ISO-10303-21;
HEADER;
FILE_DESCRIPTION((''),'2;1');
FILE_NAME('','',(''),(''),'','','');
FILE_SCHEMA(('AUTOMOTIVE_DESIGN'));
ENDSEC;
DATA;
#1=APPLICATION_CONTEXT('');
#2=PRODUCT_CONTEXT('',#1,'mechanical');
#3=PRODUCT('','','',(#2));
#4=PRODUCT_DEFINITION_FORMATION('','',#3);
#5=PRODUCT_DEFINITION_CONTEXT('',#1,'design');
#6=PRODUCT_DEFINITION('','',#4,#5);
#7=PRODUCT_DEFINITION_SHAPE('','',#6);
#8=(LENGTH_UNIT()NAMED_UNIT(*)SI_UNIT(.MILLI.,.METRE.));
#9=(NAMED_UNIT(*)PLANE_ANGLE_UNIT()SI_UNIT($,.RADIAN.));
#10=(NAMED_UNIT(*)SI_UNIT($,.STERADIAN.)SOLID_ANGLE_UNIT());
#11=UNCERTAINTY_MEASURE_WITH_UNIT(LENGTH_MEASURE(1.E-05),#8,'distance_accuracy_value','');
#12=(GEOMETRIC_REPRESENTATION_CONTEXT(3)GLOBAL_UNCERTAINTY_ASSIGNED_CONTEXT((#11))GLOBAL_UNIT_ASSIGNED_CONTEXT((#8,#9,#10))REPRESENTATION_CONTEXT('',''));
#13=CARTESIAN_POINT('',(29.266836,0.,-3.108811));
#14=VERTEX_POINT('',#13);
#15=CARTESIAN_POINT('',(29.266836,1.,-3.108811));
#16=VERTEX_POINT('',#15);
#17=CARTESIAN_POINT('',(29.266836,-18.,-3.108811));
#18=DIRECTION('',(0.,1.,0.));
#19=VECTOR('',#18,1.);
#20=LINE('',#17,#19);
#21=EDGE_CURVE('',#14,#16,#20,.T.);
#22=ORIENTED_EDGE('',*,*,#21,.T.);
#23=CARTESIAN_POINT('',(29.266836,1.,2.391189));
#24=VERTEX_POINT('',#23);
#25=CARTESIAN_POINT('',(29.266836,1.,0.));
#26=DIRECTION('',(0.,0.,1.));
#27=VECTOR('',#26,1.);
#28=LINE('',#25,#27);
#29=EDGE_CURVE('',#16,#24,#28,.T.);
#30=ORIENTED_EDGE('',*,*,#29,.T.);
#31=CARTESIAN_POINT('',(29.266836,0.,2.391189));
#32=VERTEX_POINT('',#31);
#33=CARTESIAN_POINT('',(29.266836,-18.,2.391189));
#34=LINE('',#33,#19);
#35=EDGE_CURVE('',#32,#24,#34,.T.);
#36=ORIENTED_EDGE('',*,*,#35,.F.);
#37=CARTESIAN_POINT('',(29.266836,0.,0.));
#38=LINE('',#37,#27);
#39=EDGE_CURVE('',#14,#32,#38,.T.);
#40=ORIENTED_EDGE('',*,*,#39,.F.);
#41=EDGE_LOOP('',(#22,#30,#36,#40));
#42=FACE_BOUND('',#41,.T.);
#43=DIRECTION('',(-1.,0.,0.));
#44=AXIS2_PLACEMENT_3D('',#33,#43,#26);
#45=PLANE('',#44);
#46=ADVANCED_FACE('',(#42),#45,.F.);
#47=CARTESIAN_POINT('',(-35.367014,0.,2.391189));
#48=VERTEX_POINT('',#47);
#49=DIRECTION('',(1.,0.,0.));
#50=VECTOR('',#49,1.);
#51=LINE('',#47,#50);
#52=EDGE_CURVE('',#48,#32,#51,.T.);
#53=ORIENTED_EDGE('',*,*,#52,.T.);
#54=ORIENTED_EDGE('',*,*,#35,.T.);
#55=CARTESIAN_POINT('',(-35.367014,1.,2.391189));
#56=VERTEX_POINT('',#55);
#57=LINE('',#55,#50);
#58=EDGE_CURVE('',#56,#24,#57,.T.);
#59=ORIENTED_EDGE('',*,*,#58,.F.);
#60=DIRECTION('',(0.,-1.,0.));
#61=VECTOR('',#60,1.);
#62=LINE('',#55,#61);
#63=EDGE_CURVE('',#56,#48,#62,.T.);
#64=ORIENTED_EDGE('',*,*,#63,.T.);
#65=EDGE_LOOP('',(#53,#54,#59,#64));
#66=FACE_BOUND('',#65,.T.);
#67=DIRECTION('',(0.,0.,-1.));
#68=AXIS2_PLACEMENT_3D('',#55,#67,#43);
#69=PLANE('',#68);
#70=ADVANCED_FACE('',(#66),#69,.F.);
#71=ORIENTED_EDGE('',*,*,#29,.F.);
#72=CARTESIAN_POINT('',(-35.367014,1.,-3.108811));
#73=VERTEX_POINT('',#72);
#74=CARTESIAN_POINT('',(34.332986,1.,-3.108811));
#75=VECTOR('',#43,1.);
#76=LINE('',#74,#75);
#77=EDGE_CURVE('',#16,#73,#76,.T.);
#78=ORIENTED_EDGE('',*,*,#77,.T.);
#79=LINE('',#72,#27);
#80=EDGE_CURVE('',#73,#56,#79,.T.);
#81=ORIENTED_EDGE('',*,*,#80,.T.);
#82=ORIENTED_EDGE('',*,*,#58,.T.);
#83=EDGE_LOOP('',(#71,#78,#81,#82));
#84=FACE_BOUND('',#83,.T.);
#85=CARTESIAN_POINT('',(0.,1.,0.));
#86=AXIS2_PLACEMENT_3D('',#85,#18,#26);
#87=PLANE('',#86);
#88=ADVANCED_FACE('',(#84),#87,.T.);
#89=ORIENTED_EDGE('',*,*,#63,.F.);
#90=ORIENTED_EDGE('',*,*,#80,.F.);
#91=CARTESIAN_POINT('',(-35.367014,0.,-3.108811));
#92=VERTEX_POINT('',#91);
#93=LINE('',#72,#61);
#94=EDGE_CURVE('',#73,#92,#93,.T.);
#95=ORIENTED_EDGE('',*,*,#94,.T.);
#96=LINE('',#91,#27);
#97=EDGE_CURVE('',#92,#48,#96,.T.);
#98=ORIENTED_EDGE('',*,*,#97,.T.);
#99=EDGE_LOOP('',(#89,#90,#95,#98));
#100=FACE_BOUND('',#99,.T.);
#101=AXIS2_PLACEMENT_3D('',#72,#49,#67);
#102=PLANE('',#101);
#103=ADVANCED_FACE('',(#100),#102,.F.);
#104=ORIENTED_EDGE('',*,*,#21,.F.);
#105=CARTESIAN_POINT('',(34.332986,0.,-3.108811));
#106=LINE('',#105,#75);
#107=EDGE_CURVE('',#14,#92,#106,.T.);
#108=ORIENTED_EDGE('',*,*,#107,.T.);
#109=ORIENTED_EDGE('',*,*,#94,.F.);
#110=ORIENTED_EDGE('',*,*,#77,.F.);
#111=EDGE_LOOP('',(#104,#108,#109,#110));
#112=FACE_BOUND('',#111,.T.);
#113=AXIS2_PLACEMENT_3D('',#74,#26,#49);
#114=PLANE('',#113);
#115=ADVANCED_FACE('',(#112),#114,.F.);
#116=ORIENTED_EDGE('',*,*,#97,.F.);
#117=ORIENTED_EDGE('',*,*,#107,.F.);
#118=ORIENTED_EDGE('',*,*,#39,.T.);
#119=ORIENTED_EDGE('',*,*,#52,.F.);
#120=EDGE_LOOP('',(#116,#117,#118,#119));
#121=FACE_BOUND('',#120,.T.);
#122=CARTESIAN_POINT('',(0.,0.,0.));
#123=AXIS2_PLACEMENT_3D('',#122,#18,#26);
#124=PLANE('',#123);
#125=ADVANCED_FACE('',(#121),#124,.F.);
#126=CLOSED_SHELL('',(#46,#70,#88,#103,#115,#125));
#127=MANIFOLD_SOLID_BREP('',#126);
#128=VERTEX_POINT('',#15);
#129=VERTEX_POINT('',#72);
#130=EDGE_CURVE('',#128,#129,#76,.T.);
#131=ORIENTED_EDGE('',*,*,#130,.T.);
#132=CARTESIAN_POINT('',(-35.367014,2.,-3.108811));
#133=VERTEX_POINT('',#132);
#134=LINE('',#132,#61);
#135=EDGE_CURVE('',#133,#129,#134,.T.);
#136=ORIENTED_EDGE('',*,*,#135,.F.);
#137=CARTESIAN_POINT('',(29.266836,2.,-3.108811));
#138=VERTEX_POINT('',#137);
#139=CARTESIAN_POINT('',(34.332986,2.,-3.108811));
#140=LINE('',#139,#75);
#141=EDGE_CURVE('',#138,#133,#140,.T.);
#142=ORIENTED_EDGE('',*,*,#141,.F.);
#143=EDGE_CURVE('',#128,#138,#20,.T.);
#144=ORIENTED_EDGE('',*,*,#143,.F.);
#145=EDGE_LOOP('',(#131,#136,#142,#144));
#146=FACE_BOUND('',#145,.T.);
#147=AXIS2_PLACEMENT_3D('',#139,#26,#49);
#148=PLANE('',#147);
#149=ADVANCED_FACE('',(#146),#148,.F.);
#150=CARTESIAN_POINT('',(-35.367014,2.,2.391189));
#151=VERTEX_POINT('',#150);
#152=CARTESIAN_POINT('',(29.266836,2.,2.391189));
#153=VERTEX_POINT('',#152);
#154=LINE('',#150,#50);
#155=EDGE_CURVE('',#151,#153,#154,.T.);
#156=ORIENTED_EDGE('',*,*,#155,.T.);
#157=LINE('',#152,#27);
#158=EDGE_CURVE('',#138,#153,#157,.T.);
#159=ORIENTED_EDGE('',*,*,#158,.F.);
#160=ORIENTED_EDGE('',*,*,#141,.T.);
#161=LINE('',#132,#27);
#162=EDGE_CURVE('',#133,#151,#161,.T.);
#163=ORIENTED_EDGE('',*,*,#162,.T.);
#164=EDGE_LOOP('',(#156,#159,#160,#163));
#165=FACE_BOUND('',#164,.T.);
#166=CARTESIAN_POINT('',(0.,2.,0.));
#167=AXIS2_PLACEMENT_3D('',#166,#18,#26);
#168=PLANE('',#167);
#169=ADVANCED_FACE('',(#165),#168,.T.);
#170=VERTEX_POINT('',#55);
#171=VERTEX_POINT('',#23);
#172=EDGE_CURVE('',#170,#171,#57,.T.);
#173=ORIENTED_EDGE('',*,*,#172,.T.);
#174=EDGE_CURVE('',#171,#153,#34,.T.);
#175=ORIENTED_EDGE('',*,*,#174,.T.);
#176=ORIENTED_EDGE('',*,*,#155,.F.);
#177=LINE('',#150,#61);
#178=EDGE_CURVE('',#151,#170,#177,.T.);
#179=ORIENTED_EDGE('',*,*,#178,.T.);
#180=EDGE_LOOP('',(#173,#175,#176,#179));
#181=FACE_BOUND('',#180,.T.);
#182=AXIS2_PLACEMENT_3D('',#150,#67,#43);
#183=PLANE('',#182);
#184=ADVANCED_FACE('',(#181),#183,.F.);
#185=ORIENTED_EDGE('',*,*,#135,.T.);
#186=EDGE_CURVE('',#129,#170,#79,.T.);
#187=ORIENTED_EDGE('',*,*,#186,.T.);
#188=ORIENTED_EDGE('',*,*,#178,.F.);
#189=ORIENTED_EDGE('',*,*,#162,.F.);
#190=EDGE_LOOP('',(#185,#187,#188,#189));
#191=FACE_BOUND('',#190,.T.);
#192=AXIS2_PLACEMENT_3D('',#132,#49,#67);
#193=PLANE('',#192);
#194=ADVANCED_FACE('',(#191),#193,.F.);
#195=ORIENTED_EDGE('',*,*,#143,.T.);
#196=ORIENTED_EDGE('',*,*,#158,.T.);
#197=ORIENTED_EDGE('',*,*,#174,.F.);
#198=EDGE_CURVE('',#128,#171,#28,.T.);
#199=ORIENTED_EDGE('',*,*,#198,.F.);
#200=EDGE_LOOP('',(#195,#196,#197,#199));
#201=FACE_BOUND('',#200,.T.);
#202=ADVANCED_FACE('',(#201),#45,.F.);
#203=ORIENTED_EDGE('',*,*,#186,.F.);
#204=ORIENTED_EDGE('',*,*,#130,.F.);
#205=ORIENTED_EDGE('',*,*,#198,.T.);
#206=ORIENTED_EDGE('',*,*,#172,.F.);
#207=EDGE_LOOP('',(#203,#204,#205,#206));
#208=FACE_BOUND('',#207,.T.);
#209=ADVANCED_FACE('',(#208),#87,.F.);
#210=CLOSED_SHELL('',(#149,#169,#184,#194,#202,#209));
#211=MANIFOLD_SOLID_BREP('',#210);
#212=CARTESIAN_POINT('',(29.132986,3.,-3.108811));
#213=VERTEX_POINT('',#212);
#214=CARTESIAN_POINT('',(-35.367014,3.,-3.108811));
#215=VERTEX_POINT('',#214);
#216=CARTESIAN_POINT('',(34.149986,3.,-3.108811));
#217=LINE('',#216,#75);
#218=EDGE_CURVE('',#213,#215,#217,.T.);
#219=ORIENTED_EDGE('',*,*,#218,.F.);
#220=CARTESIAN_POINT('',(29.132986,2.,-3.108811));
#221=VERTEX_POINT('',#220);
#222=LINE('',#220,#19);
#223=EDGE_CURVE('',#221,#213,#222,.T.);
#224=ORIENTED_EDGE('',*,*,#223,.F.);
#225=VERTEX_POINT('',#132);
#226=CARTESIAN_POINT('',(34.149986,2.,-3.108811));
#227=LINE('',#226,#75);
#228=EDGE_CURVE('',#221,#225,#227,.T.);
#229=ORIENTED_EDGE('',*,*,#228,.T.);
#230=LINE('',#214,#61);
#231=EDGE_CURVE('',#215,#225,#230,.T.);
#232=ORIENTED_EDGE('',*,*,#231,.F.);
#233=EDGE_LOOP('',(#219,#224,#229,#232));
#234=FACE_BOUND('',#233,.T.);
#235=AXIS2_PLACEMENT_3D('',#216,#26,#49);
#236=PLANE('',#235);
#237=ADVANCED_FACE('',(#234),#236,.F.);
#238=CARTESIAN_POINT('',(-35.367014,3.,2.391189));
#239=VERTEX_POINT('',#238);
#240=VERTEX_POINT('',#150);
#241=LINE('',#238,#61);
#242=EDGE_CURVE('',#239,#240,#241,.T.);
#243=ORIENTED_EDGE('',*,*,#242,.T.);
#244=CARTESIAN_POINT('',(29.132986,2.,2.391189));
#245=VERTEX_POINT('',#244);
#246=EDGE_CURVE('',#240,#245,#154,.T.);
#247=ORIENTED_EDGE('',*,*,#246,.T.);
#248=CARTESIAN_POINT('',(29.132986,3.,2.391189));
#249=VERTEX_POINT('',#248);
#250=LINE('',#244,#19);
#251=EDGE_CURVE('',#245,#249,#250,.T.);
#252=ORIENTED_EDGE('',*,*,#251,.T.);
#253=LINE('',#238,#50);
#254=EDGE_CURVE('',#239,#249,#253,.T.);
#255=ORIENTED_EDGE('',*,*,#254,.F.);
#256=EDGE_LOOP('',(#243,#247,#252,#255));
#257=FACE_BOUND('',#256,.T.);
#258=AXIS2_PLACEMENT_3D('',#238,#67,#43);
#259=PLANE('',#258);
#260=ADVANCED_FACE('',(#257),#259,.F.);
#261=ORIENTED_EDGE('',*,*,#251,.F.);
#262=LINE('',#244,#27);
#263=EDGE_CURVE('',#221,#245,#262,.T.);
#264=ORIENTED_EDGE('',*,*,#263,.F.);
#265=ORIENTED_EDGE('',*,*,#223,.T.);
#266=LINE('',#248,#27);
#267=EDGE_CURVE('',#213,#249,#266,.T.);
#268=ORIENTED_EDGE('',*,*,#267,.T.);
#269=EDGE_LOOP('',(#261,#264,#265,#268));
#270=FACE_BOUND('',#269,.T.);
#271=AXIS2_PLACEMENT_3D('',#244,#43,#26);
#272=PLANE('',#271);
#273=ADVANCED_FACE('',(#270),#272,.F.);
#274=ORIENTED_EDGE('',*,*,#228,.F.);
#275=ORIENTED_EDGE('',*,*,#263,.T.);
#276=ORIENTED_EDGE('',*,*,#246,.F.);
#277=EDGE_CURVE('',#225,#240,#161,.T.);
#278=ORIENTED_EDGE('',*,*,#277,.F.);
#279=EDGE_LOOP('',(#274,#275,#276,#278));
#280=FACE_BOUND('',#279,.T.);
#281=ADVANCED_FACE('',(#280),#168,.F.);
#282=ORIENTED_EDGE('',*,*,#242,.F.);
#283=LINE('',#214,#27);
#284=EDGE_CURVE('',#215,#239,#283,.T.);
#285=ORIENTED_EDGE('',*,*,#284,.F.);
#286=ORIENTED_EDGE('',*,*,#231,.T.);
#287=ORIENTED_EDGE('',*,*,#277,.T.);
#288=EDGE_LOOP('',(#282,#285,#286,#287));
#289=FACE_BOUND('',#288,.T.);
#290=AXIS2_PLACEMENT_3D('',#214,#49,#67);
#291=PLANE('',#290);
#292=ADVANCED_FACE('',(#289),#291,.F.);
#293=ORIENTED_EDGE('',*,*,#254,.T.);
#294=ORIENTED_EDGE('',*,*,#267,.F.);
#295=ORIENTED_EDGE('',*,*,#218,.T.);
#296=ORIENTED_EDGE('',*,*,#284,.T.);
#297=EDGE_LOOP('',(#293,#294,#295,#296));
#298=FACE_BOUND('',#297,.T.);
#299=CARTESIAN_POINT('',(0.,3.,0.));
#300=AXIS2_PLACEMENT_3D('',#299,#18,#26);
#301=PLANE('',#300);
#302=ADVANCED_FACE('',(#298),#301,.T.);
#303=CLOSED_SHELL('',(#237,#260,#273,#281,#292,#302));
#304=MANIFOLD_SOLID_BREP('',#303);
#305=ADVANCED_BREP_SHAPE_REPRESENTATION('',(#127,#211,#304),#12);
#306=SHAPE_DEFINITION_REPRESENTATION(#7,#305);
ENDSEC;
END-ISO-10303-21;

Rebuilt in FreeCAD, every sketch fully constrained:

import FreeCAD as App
import Part
import Sketcher


def add_polygon(sketch, points):
    """Adds a closed chain of lines whose ends are joined by coincident constraints."""
    first, n = sketch.GeometryCount, len(points)
    for a, b in zip(points, points[1:] + points[:1]):
        sketch.addGeometry(Part.LineSegment(App.Vector(*a, 0), App.Vector(*b, 0)), False)
    for i in range(n):
        sketch.addConstraint(Sketcher.Constraint("Coincident", first + i, 2, first + (i + 1) % n, 1))

doc = App.newDocument("Part")
body = doc.addObject("PartDesign::Body", "Body")

# Sketch on XZ plane
sketch1 = doc.addObject("Sketcher::SketchObject", "Sketch")
body.addObject(sketch1)
sketch1.AttachmentSupport = (doc.XZ_Plane, [""])
sketch1.MapMode = "FlatFace"
add_polygon(sketch1, [(-35.367014, -3.108811), (-35.367014, 2.391189), (34.332986, 2.391189), (34.332986, -3.108811)])  # lines 0-3
sketch1.addConstraint([
    Sketcher.Constraint("Vertical", 0),
    Sketcher.Constraint("Horizontal", 1),
    Sketcher.Constraint("Vertical", 2),
    Sketcher.Constraint("Horizontal", 3),
    Sketcher.Constraint("DistanceX", 1, 1, 1, 2, 69.7),
    Sketcher.Constraint("DistanceY", 0, 1, 0, 2, 5.5),
    Sketcher.Constraint("DistanceY", -1, 1, 0, 2, 2.391189),
    Sketcher.Constraint("DistanceX", 0, 2, -1, 1, 35.367014),
])
pad1 = doc.addObject("PartDesign::Pad", "Pad")
body.addObject(pad1)
pad1.Profile = sketch1
pad1.Length = 1
pad1.Reversed = True
body2 = doc.addObject("PartDesign::Body", "Body001")

# Sketch on XZ plane
sketch2 = doc.addObject("Sketcher::SketchObject", "Sketch001")
body2.addObject(sketch2)
sketch2.AttachmentSupport = (doc.getObject("XZ_Plane001"), [""])
sketch2.MapMode = "FlatFace"
sketch2.AttachmentOffset = App.Placement(App.Vector(0, 0, -1), App.Rotation())
add_polygon(sketch2, [(-35.367014, -3.108811), (-35.367014, 2.391189), (34.332986, 2.391189), (34.332986, -3.108811)])  # lines 0-3
sketch2.addConstraint([
    Sketcher.Constraint("Vertical", 0),
    Sketcher.Constraint("Horizontal", 1),
    Sketcher.Constraint("Vertical", 2),
    Sketcher.Constraint("Horizontal", 3),
    Sketcher.Constraint("DistanceX", 1, 1, 1, 2, 69.7),
    Sketcher.Constraint("DistanceY", 0, 1, 0, 2, 5.5),
    Sketcher.Constraint("DistanceY", -1, 1, 0, 2, 2.391189),
    Sketcher.Constraint("DistanceX", 0, 2, -1, 1, 35.367014),
])
pad2 = doc.addObject("PartDesign::Pad", "Pad001")
body2.addObject(pad2)
pad2.Profile = sketch2
pad2.Length = 1
pad2.Reversed = True
body3 = doc.addObject("PartDesign::Body", "Body002")

# Sketch on XZ plane
sketch3 = doc.addObject("Sketcher::SketchObject", "Sketch002")
body3.addObject(sketch3)
sketch3.AttachmentSupport = (doc.getObject("XZ_Plane002"), [""])
sketch3.MapMode = "FlatFace"
sketch3.AttachmentOffset = App.Placement(App.Vector(0, 0, -2), App.Rotation())
add_polygon(sketch3, [(-35.367014, -3.108811), (-35.367014, 2.391189), (34.149986, 2.391189), (34.149986, -3.108811)])  # lines 0-3
sketch3.addConstraint([
    Sketcher.Constraint("Vertical", 0),
    Sketcher.Constraint("Horizontal", 1),
    Sketcher.Constraint("Vertical", 2),
    Sketcher.Constraint("Horizontal", 3),
    Sketcher.Constraint("DistanceY", 0, 1, 0, 2, 5.5),
    Sketcher.Constraint("DistanceX", 1, 1, 1, 2, 69.517),
    Sketcher.Constraint("DistanceY", -1, 1, 0, 2, 2.391189),
    Sketcher.Constraint("DistanceX", 0, 2, -1, 1, 35.367014),
])
pad3 = doc.addObject("PartDesign::Pad", "Pad002")
body3.addObject(pad3)
pad3.Profile = sketch3
pad3.Length = 1
pad3.Reversed = True

# Sketch on XZ plane
sketch4 = doc.addObject("Sketcher::SketchObject", "Sketch003")
body3.addObject(sketch4)
sketch4.AttachmentSupport = (doc.getObject("XZ_Plane002"), [""])
sketch4.MapMode = "FlatFace"
sketch4.AttachmentOffset = App.Placement(App.Vector(0, 0, -3), App.Rotation())
add_polygon(sketch4, [(29.132986, -3.108811), (29.132986, 2.391189), (34.332986, 2.391189), (34.332986, -3.108811)])  # lines 0-3
sketch4.addConstraint([
    Sketcher.Constraint("Vertical", 0),
    Sketcher.Constraint("Horizontal", 1),
    Sketcher.Constraint("Vertical", 2),
    Sketcher.Constraint("Horizontal", 3),
    Sketcher.Constraint("DistanceX", 1, 1, 1, 2, 5.2),
    Sketcher.Constraint("DistanceY", 0, 1, 0, 2, 5.5),
    Sketcher.Constraint("DistanceY", -1, 1, 0, 2, 2.391189),
    Sketcher.Constraint("DistanceX", -1, 1, 0, 2, 29.132986),
])
pocket1 = doc.addObject("PartDesign::Pocket", "Pocket")
body3.addObject(pocket1)
pocket1.Profile = sketch4
pocket1.Length = 1
pocket1.Reversed = True
body4 = doc.addObject("PartDesign::Body", "Body003")

# Sketch on XZ plane
sketch5 = doc.addObject("Sketcher::SketchObject", "Sketch004")
body4.addObject(sketch5)
sketch5.AttachmentSupport = (doc.getObject("XZ_Plane003"), [""])
sketch5.MapMode = "FlatFace"
sketch5.AttachmentOffset = App.Placement(App.Vector(0, 0, -2), App.Rotation())
add_polygon(sketch5, [(29.266836, -3.108811), (29.266836, 2.391189), (34.332986, 2.391189), (34.332986, -3.108811)])  # lines 0-3
sketch5.addConstraint([
    Sketcher.Constraint("Vertical", 0),
    Sketcher.Constraint("Horizontal", 1),
    Sketcher.Constraint("Vertical", 2),
    Sketcher.Constraint("Horizontal", 3),
    Sketcher.Constraint("DistanceY", 0, 1, 0, 2, 5.5),
    Sketcher.Constraint("DistanceX", 1, 1, 1, 2, 5.06615),
    Sketcher.Constraint("DistanceY", -1, 1, 0, 2, 2.391189),
    Sketcher.Constraint("DistanceX", -1, 1, 0, 2, 29.266836),
])
pad4 = doc.addObject("PartDesign::Pad", "Pad003")
body4.addObject(pad4)
pad4.Profile = sketch5
pad4.Length = 20
doc.recompute()

body5 = doc.addObject("PartDesign::Body", "Body004")
body5.BaseFeature = body4
boolean = doc.addObject("PartDesign::Boolean", "Boolean")
body.addObject(boolean)
boolean.Type = "Cut"
boolean.addObjects([body5])
doc.recompute()

boolean2 = doc.addObject("PartDesign::Boolean", "Boolean001")
body2.addObject(boolean2)
boolean2.Type = "Cut"
boolean2.addObjects([body4])

doc.recompute()
